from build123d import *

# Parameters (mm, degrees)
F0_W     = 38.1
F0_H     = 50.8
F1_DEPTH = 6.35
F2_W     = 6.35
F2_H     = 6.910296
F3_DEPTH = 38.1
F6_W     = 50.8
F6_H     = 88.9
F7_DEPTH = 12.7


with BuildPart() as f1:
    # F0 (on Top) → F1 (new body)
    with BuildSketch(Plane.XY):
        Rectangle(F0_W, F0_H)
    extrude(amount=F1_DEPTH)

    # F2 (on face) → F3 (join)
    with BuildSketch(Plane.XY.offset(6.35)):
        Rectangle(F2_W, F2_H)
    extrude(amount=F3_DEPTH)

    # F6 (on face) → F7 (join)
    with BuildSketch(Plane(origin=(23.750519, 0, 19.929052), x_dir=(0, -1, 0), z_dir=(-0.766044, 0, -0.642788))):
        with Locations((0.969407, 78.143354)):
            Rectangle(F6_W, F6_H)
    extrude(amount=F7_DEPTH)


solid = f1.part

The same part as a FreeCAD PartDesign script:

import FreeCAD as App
import Part
import Sketcher
Q = App.Units.Quantity

doc = App.newDocument("Part")
params = doc.addObject("Spreadsheet::Sheet", "Params")
for row, (alias, value) in enumerate([
    ("sketch1_height", "2 in"),
    ("sketch1_width", "1.5 in"),
    ("pad1_length", "0.25 in"),
    ("sketch2_width", "0.25 in"),
    ("pad2_length", "1.5 in"),
    ("sketch3_width", "2 in"),
    ("sketch3_height", "3.5 in"),
    ("pad3_length", "0.5 in"),
], start=1):
    params.set(f"A{row}", alias)
    params.set(f"B{row}", "=" + value)
    params.setAlias(f"B{row}", alias)

body = doc.addObject("PartDesign::Body", "Body")

# Sketch on XY plane
sketch1 = body.newObject("Sketcher::SketchObject", "Sketch")
sketch1.AttachmentSupport = (doc.getObject("XY_Plane"), [""])
sketch1.MapMode = "FlatFace"
sketch1.addGeometry([
    Part.LineSegment(App.Vector(-19, 25, 0), App.Vector(-19, -25, 0)),
    Part.LineSegment(App.Vector(-19, -25, 0), App.Vector(19, -25, 0)),
    Part.LineSegment(App.Vector(19, -25, 0), App.Vector(19, 25, 0)),
    Part.LineSegment(App.Vector(19, 25, 0), App.Vector(-19, 25, 0)),
], False)
sketch1.addConstraint([
    Sketcher.Constraint("Coincident", 0, 2, 1, 1),
    Sketcher.Constraint("Coincident", 1, 2, 2, 1),
    Sketcher.Constraint("Coincident", 2, 2, 3, 1),
    Sketcher.Constraint("Coincident", 3, 2, 0, 1),
    Sketcher.Constraint("Vertical", 0),
    Sketcher.Constraint("Horizontal", 1),
    Sketcher.Constraint("Vertical", 2),
    Sketcher.Constraint("Horizontal", 3),
    Sketcher.Constraint("Symmetric", 0, 2, 2, 2, -1, 1),
    Sketcher.Constraint("DistanceY", 0, 2, 0, 1, Q("2 in")),
    Sketcher.Constraint("DistanceX", 1, 1, 1, 2, Q("1.5 in")),
])
sketch1.setExpression("Constraints[9]", "Params.sketch1_height")
sketch1.setExpression("Constraints[10]", "Params.sketch1_width")
pad1 = body.newObject("PartDesign::Pad", "Pad")
pad1.Profile = sketch1
pad1.setExpression("Length", "Params.pad1_length")

# Sketch on XY plane
sketch2 = body.newObject("Sketcher::SketchObject", "Sketch001")
sketch2.AttachmentSupport = (doc.getObject("XY_Plane"), [""])
sketch2.MapMode = "FlatFace"
sketch2.AttachmentOffset = App.Placement(App.Vector(0, 0, 0.25 * 25.4), App.Rotation())
sketch2.addGeometry([
    Part.LineSegment(App.Vector(-3, 3, 0), App.Vector(-3, -3, 0)),
    Part.LineSegment(App.Vector(-3, -3, 0), App.Vector(3, -3, 0)),
    Part.LineSegment(App.Vector(3, -3, 0), App.Vector(3, 3, 0)),
    Part.LineSegment(App.Vector(3, 3, 0), App.Vector(-3, 3, 0)),
], False)
sketch2.addConstraint([
    Sketcher.Constraint("Coincident", 0, 2, 1, 1),
    Sketcher.Constraint("Coincident", 1, 2, 2, 1),
    Sketcher.Constraint("Coincident", 2, 2, 3, 1),
    Sketcher.Constraint("Coincident", 3, 2, 0, 1),
    Sketcher.Constraint("Vertical", 0),
    Sketcher.Constraint("Horizontal", 1),
    Sketcher.Constraint("Vertical", 2),
    Sketcher.Constraint("Horizontal", 3),
    Sketcher.Constraint("Symmetric", 0, 2, 2, 2, -1, 1),
    Sketcher.Constraint("DistanceX", 1, 1, 1, 2, Q("0.25 in")),
    Sketcher.Constraint("DistanceY", 0, 2, 0, 1, Q("6.910296 mm")),
])
sketch2.setExpression("Constraints[9]", "Params.sketch2_width")
pad2 = body.newObject("PartDesign::Pad", "Pad001")
pad2.Profile = sketch2
pad2.setExpression("Length", "Params.pad2_length")

# Sketch on an angled plane
sketch3 = body.newObject("Sketcher::SketchObject", "Sketch002")
sketch3.Placement = App.Placement(App.Vector(23.750519, 0, 19.929052), App.Rotation(App.Vector(0, -1, 0), App.Vector(-0.642788057, 0, 0.766044068), App.Vector(-0.766044068, 0, -0.642788057), "ZXY"))
sketch3.addGeometry([
    Part.LineSegment(App.Vector(-24, 123, 0), App.Vector(-24, 34, 0)),
    Part.LineSegment(App.Vector(-24, 34, 0), App.Vector(26, 34, 0)),
    Part.LineSegment(App.Vector(26, 34, 0), App.Vector(26, 123, 0)),
    Part.LineSegment(App.Vector(26, 123, 0), App.Vector(-24, 123, 0)),
], False)
sketch3.addConstraint([
    Sketcher.Constraint("Coincident", 0, 2, 1, 1),
    Sketcher.Constraint("Coincident", 1, 2, 2, 1),
    Sketcher.Constraint("Coincident", 2, 2, 3, 1),
    Sketcher.Constraint("Coincident", 3, 2, 0, 1),
    Sketcher.Constraint("Vertical", 0),
    Sketcher.Constraint("Horizontal", 1),
    Sketcher.Constraint("Vertical", 2),
    Sketcher.Constraint("Horizontal", 3),
    Sketcher.Constraint("DistanceX", 1, 1, 1, 2, Q("2 in")),
    Sketcher.Constraint("DistanceY", 0, 2, 0, 1, Q("3.5 in")),
    Sketcher.Constraint("DistanceX", 0, 2, -1, 1, Q("24.430593 mm")),
    Sketcher.Constraint("DistanceY", -1, 1, 0, 2, Q("33.693354 mm")),
])
sketch3.setExpression("Constraints[8]", "Params.sketch3_width")
sketch3.setExpression("Constraints[9]", "Params.sketch3_height")
pad3 = body.newObject("PartDesign::Pad", "Pad002")
pad3.Profile = sketch3
pad3.setExpression("Length", "Params.pad3_length")

doc.recompute()
